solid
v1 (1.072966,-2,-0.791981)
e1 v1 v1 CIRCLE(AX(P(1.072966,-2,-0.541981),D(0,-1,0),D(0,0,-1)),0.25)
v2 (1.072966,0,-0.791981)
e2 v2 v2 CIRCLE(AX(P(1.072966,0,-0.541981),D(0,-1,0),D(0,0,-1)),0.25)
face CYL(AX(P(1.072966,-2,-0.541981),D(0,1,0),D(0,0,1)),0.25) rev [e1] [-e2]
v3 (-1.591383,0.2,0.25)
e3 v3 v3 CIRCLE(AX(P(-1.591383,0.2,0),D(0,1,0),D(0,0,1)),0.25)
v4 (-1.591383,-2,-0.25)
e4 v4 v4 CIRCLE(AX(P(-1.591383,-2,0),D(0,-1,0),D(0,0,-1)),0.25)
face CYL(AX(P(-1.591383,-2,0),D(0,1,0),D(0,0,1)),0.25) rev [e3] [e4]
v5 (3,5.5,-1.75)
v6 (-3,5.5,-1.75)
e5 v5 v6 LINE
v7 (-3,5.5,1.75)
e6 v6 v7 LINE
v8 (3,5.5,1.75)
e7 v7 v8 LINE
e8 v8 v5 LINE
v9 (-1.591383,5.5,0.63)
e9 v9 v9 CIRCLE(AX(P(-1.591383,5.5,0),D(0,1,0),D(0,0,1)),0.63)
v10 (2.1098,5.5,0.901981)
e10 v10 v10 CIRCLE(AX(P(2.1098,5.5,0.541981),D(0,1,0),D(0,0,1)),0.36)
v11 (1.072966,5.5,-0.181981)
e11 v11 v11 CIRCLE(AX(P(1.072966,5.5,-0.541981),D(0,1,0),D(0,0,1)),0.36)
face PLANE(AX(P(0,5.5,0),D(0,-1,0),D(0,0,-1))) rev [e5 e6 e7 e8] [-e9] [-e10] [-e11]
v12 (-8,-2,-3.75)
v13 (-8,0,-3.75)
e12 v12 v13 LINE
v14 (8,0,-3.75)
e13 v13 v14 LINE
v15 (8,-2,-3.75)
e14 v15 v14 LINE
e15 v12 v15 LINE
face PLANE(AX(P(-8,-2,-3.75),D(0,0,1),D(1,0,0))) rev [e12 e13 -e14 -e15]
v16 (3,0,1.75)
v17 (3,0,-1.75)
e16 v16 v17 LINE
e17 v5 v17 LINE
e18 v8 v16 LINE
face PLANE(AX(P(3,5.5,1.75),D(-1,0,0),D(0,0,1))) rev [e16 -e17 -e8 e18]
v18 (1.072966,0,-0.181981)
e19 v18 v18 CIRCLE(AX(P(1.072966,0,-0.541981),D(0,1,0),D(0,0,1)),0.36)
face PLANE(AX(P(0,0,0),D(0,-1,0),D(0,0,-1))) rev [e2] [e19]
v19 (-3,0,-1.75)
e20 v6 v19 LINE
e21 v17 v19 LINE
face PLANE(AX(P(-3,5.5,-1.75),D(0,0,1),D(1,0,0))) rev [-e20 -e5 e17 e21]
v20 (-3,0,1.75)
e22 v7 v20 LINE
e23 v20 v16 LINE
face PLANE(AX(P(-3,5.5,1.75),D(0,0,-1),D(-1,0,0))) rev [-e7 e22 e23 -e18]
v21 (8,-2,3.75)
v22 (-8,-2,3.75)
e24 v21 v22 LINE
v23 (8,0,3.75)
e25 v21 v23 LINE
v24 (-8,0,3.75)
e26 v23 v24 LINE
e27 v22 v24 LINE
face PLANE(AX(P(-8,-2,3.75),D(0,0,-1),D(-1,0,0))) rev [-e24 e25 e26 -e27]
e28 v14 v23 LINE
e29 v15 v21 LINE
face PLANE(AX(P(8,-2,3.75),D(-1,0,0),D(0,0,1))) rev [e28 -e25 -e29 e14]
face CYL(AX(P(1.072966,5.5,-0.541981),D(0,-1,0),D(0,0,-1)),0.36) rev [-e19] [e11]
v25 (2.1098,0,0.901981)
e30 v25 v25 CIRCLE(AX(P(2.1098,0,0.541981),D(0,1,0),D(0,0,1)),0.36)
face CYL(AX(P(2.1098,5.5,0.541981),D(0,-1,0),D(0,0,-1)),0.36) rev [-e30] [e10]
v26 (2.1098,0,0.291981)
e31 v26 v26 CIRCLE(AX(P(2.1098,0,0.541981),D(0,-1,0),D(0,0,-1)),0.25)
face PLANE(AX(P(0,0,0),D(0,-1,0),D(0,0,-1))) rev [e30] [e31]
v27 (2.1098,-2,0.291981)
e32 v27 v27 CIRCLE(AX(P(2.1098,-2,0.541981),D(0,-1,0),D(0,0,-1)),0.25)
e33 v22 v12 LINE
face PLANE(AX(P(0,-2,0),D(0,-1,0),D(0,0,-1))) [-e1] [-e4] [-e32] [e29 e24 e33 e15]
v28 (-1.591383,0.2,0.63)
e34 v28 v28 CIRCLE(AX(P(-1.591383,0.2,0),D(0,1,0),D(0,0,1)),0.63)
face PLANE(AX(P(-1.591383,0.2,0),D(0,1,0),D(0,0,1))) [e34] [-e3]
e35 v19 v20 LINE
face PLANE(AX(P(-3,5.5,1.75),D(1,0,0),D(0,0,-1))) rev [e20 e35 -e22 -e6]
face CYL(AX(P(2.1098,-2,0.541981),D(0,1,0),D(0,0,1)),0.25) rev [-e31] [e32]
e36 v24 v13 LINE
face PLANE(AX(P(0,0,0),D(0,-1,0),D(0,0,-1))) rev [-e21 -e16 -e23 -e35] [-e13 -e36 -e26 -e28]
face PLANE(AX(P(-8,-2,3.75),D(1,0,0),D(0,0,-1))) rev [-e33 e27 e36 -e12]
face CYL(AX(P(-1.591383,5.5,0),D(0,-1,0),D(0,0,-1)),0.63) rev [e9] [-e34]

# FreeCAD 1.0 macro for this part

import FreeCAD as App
import Part
import Sketcher
from FreeCAD import Vector
Q = App.Units.Quantity

doc = App.newDocument("Part")
params = doc.addObject("Spreadsheet::Sheet", "Params")
for row, (alias, value) in enumerate([
    ("sketch1_diameter", "0.72 mm"),
    ("sketch1_diameter2", "1.26 mm"),
    ("sketch1_width", "6 mm"),
    ("sketch1_height", "3.5 mm"),
    ("pad1_length", "5.5 mm"),
    ("sketch2_diameter", "0.5 mm"),
    ("sketch2_width", "16 mm"),
    ("sketch2_height", "7.5 mm"),
    ("pad2_length", "2 mm"),
    ("sketch3_diameter", "0.5 mm"),
    ("sketch3_diameter2", "1.26 mm"),
    ("pad3_length", "0.2 mm"),
], start=1):
    params.set(f"A{row}", alias)
    params.set(f"B{row}", "=" + value)
    params.setAlias(f"B{row}", alias)

body = doc.addObject("PartDesign::Body", "Body")

sketch1 = doc.addObject("Sketcher::SketchObject", "Sketch")
body.addObject(sketch1)
sketch1.AttachmentSupport = (doc.XZ_Plane, [""])
sketch1.MapMode = "FlatFace"
sketch1.addGeometry(Part.LineSegment(Vector(-3, -1.75, 0), Vector(-3, 1.75, 0)), False)
sketch1.addGeometry(Part.LineSegment(Vector(-3, 1.75, 0), Vector(3, 1.75, 0)), False)
sketch1.addGeometry(Part.LineSegment(Vector(3, 1.75, 0), Vector(3, -1.75, 0)), False)
sketch1.addGeometry(Part.LineSegment(Vector(3, -1.75, 0), Vector(-3, -1.75, 0)), False)
sketch1.addGeometry(Part.Circle(Vector(2.11, 0.54, 0), Vector(0, 0, 1), 0.36), False)
sketch1.addGeometry(Part.Circle(Vector(-1.59, 0, 0), Vector(0, 0, 1), 0.63), False)
sketch1.addGeometry(Part.Circle(Vector(1.07, -0.54, 0), Vector(0, 0, 1), 0.36), False)
sketch1.addConstraint(Sketcher.Constraint("Coincident", 0, 2, 1, 1))
sketch1.addConstraint(Sketcher.Constraint("Coincident", 1, 2, 2, 1))
sketch1.addConstraint(Sketcher.Constraint("Coincident", 2, 2, 3, 1))
sketch1.addConstraint(Sketcher.Constraint("Coincident", 3, 2, 0, 1))
sketch1.addConstraint(Sketcher.Constraint("Vertical", 0))
sketch1.addConstraint(Sketcher.Constraint("Horizontal", 1))
sketch1.addConstraint(Sketcher.Constraint("Vertical", 2))
sketch1.addConstraint(Sketcher.Constraint("Horizontal", 3))
sketch1.addConstraint(Sketcher.Constraint("Equal", 4, 6))
sketch1.addConstraint(Sketcher.Constraint("Symmetric", 0, 2, 2, 2, -1, 1))
sketch1.addConstraint(Sketcher.Constraint("PointOnObject", 5, 3, -1))
sketch1.addConstraint(Sketcher.Constraint("Diameter", 4, Q("0.72 mm")))
sketch1.addConstraint(Sketcher.Constraint("Diameter", 5, Q("1.26 mm")))
sketch1.addConstraint(Sketcher.Constraint("DistanceX", 1, 1, 1, 2, Q("6 mm")))
sketch1.addConstraint(Sketcher.Constraint("DistanceY", 0, 1, 0, 2, Q("3.5 mm")))
sketch1.addConstraint(Sketcher.Constraint("DistanceX", -1, 1, 4, 3, Q("2.1098 mm")))
sketch1.addConstraint(Sketcher.Constraint("DistanceY", -1, 1, 4, 3, Q("0.541981 mm")))
sketch1.addConstraint(Sketcher.Constraint("DistanceY", 6, 3, -1, 1, Q("0.541981 mm")))
sketch1.addConstraint(Sketcher.Constraint("DistanceX", 5, 3, 6, 3, Q("2.664349 mm")))
sketch1.addConstraint(Sketcher.Constraint("DistanceX", 5, 3, -1, 1, Q("1.591383 mm")))
sketch1.setExpression("Constraints[11]", "Params.sketch1_diameter")
sketch1.setExpression("Constraints[12]", "Params.sketch1_diameter2")
sketch1.setExpression("Constraints[13]", "Params.sketch1_width")
sketch1.setExpression("Constraints[14]", "Params.sketch1_height")
pad1 = doc.addObject("PartDesign::Pad", "Pad")
body.addObject(pad1)
pad1.Profile = sketch1
pad1.setExpression("Length", "Params.pad1_length")
pad1.Reversed = True

sketch2 = doc.addObject("Sketcher::SketchObject", "Sketch001")
body.addObject(sketch2)
sketch2.AttachmentSupport = (doc.XZ_Plane, [""])
sketch2.MapMode = "FlatFace"
sketch2.addGeometry(Part.LineSegment(Vector(-8, 3.75, 0), Vector(-8, -3.75, 0)), False)
sketch2.addGeometry(Part.LineSegment(Vector(-8, -3.75, 0), Vector(8, -3.75, 0)), False)
sketch2.addGeometry(Part.LineSegment(Vector(8, -3.75, 0), Vector(8, 3.75, 0)), False)
sketch2.addGeometry(Part.LineSegment(Vector(8, 3.75, 0), Vector(-8, 3.75, 0)), False)
sketch2.addGeometry(Part.Circle(Vector(1.07, -0.54, 0), Vector(0, 0, 1), 0.25), False)
sketch2.addGeometry(Part.Circle(Vector(-1.59, 0, 0), Vector(0, 0, 1), 0.25), False)
sketch2.addGeometry(Part.Circle(Vector(2.11, 0.54, 0), Vector(0, 0, 1), 0.25), False)
sketch2.addConstraint(Sketcher.Constraint("Coincident", 0, 2, 1, 1))
sketch2.addConstraint(Sketcher.Constraint("Coincident", 1, 2, 2, 1))
sketch2.addConstraint(Sketcher.Constraint("Coincident", 2, 2, 3, 1))
sketch2.addConstraint(Sketcher.Constraint("Coincident", 3, 2, 0, 1))
sketch2.addConstraint(Sketcher.Constraint("Vertical", 0))
sketch2.addConstraint(Sketcher.Constraint("Horizontal", 1))
sketch2.addConstraint(Sketcher.Constraint("Vertical", 2))
sketch2.addConstraint(Sketcher.Constraint("Horizontal", 3))
sketch2.addConstraint(Sketcher.Constraint("Equal", 4, 5))
sketch2.addConstraint(Sketcher.Constraint("Equal", 5, 6))
sketch2.addConstraint(Sketcher.Constraint("Symmetric", 0, 2, 2, 2, -1, 1))
sketch2.addConstraint(Sketcher.Constraint("PointOnObject", 5, 3, -1))
sketch2.addConstraint(Sketcher.Constraint("Diameter", 4, Q("0.5 mm")))
sketch2.addConstraint(Sketcher.Constraint("DistanceX", 1, 1, 1, 2, Q("16 mm")))
sketch2.addConstraint(Sketcher.Constraint("DistanceY", 0, 2, 0, 1, Q("7.5 mm")))
sketch2.addConstraint(Sketcher.Constraint("DistanceX", -1, 1, 6, 3, Q("2.1098 mm")))
sketch2.addConstraint(Sketcher.Constraint("DistanceY", 4, 3, -1, 1, Q("0.541981 mm")))
sketch2.addConstraint(Sketcher.Constraint("DistanceY", -1, 1, 6, 3, Q("0.541981 mm")))
sketch2.addConstraint(Sketcher.Constraint("DistanceX", 5, 3, 4, 3, Q("2.664349 mm")))
sketch2.addConstraint(Sketcher.Constraint("DistanceX", -1, 1, 4, 3, Q("1.072966 mm")))
sketch2.setExpression("Constraints[12]", "Params.sketch2_diameter")
sketch2.setExpression("Constraints[13]", "Params.sketch2_width")
sketch2.setExpression("Constraints[14]", "Params.sketch2_height")
pad2 = doc.addObject("PartDesign::Pad", "Pad001")
body.addObject(pad2)
pad2.Profile = sketch2
pad2.setExpression("Length", "Params.pad2_length")

sketch3 = doc.addObject("Sketcher::SketchObject", "Sketch002")
body.addObject(sketch3)
sketch3.AttachmentSupport = (doc.XZ_Plane, [""])
sketch3.MapMode = "FlatFace"
sketch3.addGeometry(Part.Circle(Vector(-1.59, 0, 0), Vector(0, 0, 1), 0.63), False)
sketch3.addGeometry(Part.Circle(Vector(-1.59, 0, 0), Vector(0, 0, 1), 0.25), False)
sketch3.addConstraint(Sketcher.Constraint("Coincident", 1, 3, 0, 3))
sketch3.addConstraint(Sketcher.Constraint("PointOnObject", 0, 3, -1))
sketch3.addConstraint(Sketcher.Constraint("Diameter", 1, Q("0.5 mm")))
sketch3.addConstraint(Sketcher.Constraint("Diameter", 0, Q("1.26 mm")))
sketch3.addConstraint(Sketcher.Constraint("DistanceX", 0, 3, -1, 1, Q("1.591383 mm")))
sketch3.setExpression("Constraints[2]", "Params.sketch3_diameter")
sketch3.setExpression("Constraints[3]", "Params.sketch3_diameter2")
pad3 = doc.addObject("PartDesign::Pad", "Pad002")
body.addObject(pad3)
pad3.Profile = sketch3
pad3.setExpression("Length", "Params.pad3_length")
pad3.Reversed = True

doc.recompute()
